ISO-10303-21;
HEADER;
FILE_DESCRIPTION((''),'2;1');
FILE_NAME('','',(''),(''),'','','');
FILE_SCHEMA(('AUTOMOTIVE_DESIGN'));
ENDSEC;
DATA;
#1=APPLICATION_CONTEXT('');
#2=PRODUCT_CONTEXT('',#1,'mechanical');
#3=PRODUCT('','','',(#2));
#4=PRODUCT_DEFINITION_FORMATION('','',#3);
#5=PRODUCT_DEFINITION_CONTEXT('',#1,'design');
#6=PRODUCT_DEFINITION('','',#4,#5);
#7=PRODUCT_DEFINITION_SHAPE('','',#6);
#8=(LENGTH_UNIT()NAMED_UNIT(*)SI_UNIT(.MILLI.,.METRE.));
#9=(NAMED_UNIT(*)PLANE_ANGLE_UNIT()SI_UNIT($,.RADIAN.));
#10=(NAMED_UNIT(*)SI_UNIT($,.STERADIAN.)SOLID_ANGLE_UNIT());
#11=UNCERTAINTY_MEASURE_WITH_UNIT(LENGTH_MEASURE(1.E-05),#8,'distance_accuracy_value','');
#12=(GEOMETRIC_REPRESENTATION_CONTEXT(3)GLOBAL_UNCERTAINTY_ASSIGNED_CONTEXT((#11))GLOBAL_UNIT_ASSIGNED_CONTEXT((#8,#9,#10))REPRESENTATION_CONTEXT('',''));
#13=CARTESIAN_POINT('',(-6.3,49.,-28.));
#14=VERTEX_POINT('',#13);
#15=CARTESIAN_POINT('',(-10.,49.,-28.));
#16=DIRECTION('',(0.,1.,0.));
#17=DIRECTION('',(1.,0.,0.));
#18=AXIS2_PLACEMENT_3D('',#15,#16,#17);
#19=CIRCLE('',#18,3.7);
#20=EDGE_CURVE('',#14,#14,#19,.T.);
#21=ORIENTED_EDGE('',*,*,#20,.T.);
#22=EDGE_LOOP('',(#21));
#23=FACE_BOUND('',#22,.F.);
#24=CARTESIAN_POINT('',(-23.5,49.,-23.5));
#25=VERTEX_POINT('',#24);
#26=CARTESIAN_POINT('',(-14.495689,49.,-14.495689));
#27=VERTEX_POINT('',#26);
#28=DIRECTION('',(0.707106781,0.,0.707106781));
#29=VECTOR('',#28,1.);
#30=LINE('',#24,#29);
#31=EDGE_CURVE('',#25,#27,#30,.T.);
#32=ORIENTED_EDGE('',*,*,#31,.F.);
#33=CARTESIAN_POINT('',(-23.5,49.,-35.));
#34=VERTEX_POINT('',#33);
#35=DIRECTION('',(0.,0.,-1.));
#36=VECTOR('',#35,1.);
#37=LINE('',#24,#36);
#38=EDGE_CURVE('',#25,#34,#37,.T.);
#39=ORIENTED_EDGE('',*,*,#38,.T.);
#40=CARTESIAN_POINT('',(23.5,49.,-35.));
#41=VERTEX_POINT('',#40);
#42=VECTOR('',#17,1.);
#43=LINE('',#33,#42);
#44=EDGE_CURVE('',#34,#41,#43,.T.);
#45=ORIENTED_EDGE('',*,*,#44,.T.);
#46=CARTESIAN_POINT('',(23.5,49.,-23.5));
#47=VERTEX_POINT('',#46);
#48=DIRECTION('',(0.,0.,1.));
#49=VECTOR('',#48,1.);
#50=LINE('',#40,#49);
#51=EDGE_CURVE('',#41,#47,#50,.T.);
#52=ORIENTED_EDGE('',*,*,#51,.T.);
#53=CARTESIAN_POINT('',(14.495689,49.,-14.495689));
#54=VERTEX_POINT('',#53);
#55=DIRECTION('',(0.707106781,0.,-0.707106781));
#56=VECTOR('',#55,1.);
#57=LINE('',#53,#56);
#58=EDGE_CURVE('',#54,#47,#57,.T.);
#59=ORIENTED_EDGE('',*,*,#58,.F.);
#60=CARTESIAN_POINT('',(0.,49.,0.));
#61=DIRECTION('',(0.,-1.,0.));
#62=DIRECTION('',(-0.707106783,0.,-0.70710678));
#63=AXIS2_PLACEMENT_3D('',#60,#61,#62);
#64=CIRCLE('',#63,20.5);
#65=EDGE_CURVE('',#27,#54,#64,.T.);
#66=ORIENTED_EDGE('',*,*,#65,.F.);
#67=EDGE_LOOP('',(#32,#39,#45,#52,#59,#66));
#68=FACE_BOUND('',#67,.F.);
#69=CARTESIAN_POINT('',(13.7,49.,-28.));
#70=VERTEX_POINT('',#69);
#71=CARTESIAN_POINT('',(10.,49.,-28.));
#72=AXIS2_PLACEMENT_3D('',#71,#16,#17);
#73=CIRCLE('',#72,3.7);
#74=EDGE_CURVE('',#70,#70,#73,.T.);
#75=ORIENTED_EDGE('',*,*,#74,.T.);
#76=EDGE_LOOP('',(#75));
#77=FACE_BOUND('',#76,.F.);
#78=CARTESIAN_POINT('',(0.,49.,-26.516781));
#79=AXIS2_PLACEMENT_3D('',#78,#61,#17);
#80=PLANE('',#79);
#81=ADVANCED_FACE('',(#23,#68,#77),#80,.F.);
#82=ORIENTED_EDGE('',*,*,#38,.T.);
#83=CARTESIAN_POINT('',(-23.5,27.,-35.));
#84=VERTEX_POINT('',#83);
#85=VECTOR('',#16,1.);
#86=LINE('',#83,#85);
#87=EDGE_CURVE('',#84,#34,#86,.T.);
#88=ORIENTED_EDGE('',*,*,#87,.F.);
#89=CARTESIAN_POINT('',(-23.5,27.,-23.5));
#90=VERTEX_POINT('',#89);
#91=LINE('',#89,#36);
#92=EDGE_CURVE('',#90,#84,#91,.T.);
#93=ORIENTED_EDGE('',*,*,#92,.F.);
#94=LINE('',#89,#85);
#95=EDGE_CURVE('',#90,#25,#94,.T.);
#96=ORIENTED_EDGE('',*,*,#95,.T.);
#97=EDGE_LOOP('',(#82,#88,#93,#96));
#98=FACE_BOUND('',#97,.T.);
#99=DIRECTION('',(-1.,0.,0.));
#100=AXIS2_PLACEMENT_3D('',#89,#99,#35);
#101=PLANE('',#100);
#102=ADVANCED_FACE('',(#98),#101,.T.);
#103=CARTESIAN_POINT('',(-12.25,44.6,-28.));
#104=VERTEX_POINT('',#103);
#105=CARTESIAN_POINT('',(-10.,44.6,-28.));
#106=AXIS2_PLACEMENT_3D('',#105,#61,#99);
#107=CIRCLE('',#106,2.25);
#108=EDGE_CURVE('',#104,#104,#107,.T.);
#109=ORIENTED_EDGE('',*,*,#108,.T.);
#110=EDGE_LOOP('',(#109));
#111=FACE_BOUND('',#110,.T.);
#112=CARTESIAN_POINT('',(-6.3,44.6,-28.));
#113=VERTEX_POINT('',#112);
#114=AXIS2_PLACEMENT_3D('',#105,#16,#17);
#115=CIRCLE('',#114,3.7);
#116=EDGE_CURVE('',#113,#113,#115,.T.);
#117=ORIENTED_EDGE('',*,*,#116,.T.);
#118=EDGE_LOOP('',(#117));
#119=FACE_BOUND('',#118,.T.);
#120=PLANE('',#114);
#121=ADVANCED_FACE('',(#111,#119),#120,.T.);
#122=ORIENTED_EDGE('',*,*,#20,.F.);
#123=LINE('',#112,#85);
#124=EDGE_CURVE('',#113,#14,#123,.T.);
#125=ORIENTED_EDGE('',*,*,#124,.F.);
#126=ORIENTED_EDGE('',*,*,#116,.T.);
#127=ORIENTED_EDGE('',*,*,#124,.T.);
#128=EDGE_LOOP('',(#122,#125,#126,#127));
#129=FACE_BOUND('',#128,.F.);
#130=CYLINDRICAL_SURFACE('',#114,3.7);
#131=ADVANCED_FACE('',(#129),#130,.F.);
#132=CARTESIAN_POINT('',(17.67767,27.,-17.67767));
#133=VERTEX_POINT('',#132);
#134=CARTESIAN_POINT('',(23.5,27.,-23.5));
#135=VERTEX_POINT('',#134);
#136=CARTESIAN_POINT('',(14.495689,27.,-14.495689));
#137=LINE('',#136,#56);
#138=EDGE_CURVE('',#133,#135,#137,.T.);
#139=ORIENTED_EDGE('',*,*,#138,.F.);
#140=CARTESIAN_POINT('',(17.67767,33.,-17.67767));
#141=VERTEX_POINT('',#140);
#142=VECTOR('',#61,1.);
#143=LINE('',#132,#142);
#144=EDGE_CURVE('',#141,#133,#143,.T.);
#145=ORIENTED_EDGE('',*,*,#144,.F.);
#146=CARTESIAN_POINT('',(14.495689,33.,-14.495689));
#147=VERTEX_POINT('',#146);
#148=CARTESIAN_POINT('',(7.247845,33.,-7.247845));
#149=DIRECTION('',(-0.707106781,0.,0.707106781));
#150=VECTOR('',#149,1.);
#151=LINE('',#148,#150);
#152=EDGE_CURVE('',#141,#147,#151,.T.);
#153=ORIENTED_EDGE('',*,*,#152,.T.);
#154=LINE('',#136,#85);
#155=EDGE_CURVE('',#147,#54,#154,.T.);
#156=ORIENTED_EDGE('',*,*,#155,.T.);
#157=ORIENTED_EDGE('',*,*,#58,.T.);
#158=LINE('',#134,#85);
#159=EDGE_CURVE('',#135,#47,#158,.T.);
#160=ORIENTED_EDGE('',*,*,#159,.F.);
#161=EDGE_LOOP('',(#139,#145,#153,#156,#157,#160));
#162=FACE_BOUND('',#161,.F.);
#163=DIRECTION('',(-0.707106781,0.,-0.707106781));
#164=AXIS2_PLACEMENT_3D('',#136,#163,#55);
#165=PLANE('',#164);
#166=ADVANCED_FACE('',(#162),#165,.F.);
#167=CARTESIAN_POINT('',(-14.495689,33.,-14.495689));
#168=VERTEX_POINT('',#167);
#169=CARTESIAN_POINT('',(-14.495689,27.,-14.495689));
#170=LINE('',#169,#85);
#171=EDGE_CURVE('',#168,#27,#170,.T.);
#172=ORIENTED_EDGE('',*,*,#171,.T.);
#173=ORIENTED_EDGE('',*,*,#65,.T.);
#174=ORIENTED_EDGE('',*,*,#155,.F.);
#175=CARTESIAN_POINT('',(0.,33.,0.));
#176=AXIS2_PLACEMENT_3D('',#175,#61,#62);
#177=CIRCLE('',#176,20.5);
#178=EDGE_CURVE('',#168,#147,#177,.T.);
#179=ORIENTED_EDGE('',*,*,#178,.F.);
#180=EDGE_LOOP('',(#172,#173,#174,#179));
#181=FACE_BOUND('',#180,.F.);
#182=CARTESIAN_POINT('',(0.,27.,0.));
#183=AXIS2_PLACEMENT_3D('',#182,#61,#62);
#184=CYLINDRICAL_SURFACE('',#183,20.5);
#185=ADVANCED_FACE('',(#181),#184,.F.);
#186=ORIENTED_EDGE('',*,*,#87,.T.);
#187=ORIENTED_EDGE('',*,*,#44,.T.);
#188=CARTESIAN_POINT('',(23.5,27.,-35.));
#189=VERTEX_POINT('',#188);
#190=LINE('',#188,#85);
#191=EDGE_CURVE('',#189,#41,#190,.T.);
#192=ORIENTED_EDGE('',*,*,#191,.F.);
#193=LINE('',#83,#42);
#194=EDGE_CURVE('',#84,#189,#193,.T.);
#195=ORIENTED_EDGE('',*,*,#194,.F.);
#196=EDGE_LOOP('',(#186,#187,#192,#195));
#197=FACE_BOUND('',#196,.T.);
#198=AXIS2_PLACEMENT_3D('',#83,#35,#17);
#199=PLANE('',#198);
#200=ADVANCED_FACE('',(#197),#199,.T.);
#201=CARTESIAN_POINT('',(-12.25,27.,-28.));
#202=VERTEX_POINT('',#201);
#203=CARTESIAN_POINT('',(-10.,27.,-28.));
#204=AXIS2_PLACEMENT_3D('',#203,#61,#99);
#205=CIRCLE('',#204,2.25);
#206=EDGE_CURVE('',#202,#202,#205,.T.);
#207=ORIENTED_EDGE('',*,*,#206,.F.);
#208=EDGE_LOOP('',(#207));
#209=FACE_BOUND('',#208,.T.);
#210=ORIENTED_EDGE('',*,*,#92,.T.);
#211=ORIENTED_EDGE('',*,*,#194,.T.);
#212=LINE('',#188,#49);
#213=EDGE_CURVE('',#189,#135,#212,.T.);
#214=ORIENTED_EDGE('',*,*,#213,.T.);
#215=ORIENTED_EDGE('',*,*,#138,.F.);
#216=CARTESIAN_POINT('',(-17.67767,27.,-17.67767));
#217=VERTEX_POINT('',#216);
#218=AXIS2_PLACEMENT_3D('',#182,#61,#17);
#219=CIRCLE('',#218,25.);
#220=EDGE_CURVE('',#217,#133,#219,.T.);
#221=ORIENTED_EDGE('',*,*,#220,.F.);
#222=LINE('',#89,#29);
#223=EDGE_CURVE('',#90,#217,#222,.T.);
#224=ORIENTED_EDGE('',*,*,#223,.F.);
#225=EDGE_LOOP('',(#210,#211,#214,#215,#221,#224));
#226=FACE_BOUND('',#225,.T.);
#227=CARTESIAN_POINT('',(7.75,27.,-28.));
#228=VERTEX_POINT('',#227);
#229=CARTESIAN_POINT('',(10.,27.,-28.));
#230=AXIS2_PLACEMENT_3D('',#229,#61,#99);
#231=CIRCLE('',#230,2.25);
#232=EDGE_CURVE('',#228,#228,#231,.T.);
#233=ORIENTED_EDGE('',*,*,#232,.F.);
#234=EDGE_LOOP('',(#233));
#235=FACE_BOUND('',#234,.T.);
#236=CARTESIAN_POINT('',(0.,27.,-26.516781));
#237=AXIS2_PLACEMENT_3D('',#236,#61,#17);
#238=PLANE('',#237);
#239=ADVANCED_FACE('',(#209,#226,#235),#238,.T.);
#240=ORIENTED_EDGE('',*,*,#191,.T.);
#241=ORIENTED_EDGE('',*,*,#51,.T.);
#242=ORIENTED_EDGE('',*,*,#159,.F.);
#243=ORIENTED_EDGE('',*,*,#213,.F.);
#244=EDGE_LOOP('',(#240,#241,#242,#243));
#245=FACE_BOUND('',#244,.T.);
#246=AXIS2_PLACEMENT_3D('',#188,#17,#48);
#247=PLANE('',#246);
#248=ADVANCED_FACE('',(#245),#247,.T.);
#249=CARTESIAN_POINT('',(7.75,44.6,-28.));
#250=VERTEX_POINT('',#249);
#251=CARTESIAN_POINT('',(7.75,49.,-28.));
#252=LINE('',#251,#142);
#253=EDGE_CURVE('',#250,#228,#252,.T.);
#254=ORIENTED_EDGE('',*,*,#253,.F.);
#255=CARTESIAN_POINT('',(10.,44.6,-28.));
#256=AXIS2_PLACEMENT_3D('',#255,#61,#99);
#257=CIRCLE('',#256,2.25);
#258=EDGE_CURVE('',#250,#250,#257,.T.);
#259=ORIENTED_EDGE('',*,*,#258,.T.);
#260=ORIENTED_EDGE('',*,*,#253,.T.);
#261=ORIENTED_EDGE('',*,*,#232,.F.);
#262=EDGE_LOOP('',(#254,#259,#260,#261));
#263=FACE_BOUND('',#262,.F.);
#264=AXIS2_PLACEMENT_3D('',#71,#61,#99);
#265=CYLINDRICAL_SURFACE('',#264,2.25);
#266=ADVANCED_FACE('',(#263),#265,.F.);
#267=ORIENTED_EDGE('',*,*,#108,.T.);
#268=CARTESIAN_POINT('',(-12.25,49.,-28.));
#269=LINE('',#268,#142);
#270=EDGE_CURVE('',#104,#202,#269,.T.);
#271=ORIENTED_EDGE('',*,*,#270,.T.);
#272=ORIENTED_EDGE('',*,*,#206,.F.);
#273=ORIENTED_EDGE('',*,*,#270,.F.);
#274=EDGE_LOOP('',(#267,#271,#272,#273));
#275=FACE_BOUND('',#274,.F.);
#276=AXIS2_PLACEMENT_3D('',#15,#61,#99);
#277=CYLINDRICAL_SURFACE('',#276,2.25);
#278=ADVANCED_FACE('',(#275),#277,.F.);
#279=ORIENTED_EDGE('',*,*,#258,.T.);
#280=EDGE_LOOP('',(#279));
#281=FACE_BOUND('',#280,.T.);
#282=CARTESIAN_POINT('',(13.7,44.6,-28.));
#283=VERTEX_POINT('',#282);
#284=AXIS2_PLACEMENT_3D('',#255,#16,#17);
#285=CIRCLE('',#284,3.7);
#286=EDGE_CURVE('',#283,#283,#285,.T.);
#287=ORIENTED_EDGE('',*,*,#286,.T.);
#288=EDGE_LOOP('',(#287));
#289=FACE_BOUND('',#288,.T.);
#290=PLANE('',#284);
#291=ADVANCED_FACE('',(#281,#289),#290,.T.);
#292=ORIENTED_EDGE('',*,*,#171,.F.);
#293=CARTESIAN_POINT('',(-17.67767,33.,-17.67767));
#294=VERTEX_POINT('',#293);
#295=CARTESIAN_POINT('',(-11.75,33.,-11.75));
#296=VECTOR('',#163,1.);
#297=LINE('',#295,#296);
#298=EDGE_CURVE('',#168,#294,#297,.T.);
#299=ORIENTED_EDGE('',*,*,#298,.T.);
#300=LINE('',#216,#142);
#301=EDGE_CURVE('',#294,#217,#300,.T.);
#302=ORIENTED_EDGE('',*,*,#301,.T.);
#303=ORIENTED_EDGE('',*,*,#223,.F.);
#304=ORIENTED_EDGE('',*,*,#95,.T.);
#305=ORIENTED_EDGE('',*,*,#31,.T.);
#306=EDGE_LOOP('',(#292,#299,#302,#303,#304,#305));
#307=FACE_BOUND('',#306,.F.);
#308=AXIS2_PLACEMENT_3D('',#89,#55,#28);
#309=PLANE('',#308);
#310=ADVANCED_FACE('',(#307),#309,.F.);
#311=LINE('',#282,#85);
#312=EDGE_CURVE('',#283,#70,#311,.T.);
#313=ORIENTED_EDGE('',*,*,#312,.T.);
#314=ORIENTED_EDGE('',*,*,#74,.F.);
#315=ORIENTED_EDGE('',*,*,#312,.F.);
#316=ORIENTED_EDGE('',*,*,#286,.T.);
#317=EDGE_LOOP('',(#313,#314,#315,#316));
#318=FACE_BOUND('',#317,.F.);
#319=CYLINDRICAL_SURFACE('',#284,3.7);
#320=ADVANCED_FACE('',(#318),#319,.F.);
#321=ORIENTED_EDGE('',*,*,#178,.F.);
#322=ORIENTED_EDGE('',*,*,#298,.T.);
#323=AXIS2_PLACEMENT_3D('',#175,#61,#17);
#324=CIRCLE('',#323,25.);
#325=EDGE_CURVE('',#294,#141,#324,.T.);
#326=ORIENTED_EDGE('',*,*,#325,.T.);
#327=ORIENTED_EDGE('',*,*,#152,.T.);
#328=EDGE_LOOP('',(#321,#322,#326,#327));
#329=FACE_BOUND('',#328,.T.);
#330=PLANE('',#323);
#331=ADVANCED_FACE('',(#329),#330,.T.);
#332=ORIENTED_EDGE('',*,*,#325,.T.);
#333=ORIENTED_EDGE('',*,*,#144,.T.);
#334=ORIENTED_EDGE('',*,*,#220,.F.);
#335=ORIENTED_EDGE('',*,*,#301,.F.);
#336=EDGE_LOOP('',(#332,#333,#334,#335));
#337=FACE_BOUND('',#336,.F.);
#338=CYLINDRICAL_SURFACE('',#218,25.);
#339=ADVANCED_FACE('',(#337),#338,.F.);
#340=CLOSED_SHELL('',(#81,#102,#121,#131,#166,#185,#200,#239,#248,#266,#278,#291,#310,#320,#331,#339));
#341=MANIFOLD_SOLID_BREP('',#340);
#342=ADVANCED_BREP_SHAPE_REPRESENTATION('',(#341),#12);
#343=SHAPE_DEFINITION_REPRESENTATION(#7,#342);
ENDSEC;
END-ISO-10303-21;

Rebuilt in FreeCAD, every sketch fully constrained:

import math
import FreeCAD as App
import Part
import Sketcher
from FreeCAD import Vector
Q = App.Units.Quantity

doc = App.newDocument("Part")
body = doc.addObject("PartDesign::Body", "Body")

# Sketch on XZ plane
sketch1 = body.newObject("Sketcher::SketchObject", "Sketch")
sketch1.AttachmentSupport = (doc.getObject("XZ_Plane"), [""])
sketch1.MapMode = "FlatFace"
sketch1.AttachmentOffset = App.Placement(Vector(0, 0, -27), App.Rotation())
sketch1.addGeometry(Part.LineSegment(Vector(-24, -35, 0), Vector(24, -35, 0)), False)
sketch1.addGeometry(Part.LineSegment(Vector(24, -35, 0), Vector(24, -24, 0)), False)
sketch1.addGeometry(Part.LineSegment(Vector(24, -24, 0), Vector(14, -14, 0)), False)
sketch1.addGeometry(Part.ArcOfCircle(Part.Circle(Vector(0, 0, 0), Vector(0, 0, 1), 20), math.radians(-135), math.radians(-45)), False)
sketch1.addGeometry(Part.LineSegment(Vector(-14, -14, 0), Vector(-24, -24, 0)), False)
sketch1.addGeometry(Part.LineSegment(Vector(-24, -24, 0), Vector(-24, -35, 0)), False)
sketch1.addConstraint(Sketcher.Constraint("Coincident", 0, 2, 1, 1))
sketch1.addConstraint(Sketcher.Constraint("Coincident", 1, 2, 2, 1))
sketch1.addConstraint(Sketcher.Constraint("Coincident", 2, 2, 3, 2))
sketch1.addConstraint(Sketcher.Constraint("Coincident", 3, 1, 4, 1))
sketch1.addConstraint(Sketcher.Constraint("Coincident", 4, 2, 5, 1))
sketch1.addConstraint(Sketcher.Constraint("Coincident", 5, 2, 0, 1))
sketch1.addConstraint(Sketcher.Constraint("Horizontal", 0))
sketch1.addConstraint(Sketcher.Constraint("Vertical", 1))
sketch1.addConstraint(Sketcher.Constraint("Vertical", 5))
sketch1.addConstraint(Sketcher.Constraint("Coincident", 3, 3, -1, 1))
sketch1.addConstraint(Sketcher.Constraint("Symmetric", 1, 2, 4, 2, -2))
sketch1.addConstraint(Sketcher.Constraint("Perpendicular", 2, 4))
sketch1.addConstraint(Sketcher.Constraint("Horizontal", 2, 2, 3, 1))
sketch1.addConstraint(Sketcher.Constraint("Radius", 3, Q("20.5 mm")))
sketch1.addConstraint(Sketcher.Constraint("DistanceX", 0, 1, 0, 2, Q("47 mm")))
sketch1.addConstraint(Sketcher.Constraint("DistanceY", 1, 1, 1, 2, Q("11.5 mm")))
sketch1.addConstraint(Sketcher.Constraint("DistanceY", 0, 2, -1, 1, Q("35 mm")))
pad1 = body.newObject("PartDesign::Pad", "Pad")
pad1.Profile = sketch1
pad1.Length = 22
pad1.Reversed = True

# Sketch on XZ plane
sketch2 = body.newObject("Sketcher::SketchObject", "Sketch001")
sketch2.AttachmentSupport = (doc.getObject("XZ_Plane"), [""])
sketch2.MapMode = "FlatFace"
sketch2.AttachmentOffset = App.Placement(Vector(0, 0, -27), App.Rotation())
sketch2.addGeometry(Part.Circle(Vector(0, 0, 0), Vector(0, 0, 1), 25), False)
sketch2.addConstraint(Sketcher.Constraint("Coincident", 0, 3, -1, 1))
sketch2.addConstraint(Sketcher.Constraint("Diameter", 0, Q("50 mm")))
pocket1 = body.newObject("PartDesign::Pocket", "Pocket")
pocket1.Profile = sketch2
pocket1.Length = 6

# Sketch on XZ plane
sketch3 = body.newObject("Sketcher::SketchObject", "Sketch002")
sketch3.AttachmentSupport = (doc.getObject("XZ_Plane"), [""])
sketch3.MapMode = "FlatFace"
sketch3.AttachmentOffset = App.Placement(Vector(0, 0, -49), App.Rotation())
sketch3.addGeometry(Part.Circle(Vector(-10, -28, 0), Vector(0, 0, 1), 2.2), False)
sketch3.addGeometry(Part.Circle(Vector(10, -28, 0), Vector(0, 0, 1), 2.2), False)
sketch3.addConstraint(Sketcher.Constraint("Equal", 0, 1))
sketch3.addConstraint(Sketcher.Constraint("Symmetric", 0, 3, 1, 3, -2))
sketch3.addConstraint(Sketcher.Constraint("Diameter", 0, Q("4.5 mm")))
sketch3.addConstraint(Sketcher.Constraint("DistanceX", 0, 3, -1, 1, Q("10 mm")))
sketch3.addConstraint(Sketcher.Constraint("DistanceY", 0, 3, -1, 1, Q("28 mm")))
doc.recompute()
hole = body.newObject("PartDesign::Hole", "Hole")
hole.Profile = sketch3
hole.ThreadType = "None"
hole.Diameter = 4.5
hole.DepthType = "ThroughAll"
hole.HoleCutType = "Counterbore"
hole.HoleCutDiameter = 7.4
hole.HoleCutDepth = 4.4
hole.Reversed = True

doc.recompute()
